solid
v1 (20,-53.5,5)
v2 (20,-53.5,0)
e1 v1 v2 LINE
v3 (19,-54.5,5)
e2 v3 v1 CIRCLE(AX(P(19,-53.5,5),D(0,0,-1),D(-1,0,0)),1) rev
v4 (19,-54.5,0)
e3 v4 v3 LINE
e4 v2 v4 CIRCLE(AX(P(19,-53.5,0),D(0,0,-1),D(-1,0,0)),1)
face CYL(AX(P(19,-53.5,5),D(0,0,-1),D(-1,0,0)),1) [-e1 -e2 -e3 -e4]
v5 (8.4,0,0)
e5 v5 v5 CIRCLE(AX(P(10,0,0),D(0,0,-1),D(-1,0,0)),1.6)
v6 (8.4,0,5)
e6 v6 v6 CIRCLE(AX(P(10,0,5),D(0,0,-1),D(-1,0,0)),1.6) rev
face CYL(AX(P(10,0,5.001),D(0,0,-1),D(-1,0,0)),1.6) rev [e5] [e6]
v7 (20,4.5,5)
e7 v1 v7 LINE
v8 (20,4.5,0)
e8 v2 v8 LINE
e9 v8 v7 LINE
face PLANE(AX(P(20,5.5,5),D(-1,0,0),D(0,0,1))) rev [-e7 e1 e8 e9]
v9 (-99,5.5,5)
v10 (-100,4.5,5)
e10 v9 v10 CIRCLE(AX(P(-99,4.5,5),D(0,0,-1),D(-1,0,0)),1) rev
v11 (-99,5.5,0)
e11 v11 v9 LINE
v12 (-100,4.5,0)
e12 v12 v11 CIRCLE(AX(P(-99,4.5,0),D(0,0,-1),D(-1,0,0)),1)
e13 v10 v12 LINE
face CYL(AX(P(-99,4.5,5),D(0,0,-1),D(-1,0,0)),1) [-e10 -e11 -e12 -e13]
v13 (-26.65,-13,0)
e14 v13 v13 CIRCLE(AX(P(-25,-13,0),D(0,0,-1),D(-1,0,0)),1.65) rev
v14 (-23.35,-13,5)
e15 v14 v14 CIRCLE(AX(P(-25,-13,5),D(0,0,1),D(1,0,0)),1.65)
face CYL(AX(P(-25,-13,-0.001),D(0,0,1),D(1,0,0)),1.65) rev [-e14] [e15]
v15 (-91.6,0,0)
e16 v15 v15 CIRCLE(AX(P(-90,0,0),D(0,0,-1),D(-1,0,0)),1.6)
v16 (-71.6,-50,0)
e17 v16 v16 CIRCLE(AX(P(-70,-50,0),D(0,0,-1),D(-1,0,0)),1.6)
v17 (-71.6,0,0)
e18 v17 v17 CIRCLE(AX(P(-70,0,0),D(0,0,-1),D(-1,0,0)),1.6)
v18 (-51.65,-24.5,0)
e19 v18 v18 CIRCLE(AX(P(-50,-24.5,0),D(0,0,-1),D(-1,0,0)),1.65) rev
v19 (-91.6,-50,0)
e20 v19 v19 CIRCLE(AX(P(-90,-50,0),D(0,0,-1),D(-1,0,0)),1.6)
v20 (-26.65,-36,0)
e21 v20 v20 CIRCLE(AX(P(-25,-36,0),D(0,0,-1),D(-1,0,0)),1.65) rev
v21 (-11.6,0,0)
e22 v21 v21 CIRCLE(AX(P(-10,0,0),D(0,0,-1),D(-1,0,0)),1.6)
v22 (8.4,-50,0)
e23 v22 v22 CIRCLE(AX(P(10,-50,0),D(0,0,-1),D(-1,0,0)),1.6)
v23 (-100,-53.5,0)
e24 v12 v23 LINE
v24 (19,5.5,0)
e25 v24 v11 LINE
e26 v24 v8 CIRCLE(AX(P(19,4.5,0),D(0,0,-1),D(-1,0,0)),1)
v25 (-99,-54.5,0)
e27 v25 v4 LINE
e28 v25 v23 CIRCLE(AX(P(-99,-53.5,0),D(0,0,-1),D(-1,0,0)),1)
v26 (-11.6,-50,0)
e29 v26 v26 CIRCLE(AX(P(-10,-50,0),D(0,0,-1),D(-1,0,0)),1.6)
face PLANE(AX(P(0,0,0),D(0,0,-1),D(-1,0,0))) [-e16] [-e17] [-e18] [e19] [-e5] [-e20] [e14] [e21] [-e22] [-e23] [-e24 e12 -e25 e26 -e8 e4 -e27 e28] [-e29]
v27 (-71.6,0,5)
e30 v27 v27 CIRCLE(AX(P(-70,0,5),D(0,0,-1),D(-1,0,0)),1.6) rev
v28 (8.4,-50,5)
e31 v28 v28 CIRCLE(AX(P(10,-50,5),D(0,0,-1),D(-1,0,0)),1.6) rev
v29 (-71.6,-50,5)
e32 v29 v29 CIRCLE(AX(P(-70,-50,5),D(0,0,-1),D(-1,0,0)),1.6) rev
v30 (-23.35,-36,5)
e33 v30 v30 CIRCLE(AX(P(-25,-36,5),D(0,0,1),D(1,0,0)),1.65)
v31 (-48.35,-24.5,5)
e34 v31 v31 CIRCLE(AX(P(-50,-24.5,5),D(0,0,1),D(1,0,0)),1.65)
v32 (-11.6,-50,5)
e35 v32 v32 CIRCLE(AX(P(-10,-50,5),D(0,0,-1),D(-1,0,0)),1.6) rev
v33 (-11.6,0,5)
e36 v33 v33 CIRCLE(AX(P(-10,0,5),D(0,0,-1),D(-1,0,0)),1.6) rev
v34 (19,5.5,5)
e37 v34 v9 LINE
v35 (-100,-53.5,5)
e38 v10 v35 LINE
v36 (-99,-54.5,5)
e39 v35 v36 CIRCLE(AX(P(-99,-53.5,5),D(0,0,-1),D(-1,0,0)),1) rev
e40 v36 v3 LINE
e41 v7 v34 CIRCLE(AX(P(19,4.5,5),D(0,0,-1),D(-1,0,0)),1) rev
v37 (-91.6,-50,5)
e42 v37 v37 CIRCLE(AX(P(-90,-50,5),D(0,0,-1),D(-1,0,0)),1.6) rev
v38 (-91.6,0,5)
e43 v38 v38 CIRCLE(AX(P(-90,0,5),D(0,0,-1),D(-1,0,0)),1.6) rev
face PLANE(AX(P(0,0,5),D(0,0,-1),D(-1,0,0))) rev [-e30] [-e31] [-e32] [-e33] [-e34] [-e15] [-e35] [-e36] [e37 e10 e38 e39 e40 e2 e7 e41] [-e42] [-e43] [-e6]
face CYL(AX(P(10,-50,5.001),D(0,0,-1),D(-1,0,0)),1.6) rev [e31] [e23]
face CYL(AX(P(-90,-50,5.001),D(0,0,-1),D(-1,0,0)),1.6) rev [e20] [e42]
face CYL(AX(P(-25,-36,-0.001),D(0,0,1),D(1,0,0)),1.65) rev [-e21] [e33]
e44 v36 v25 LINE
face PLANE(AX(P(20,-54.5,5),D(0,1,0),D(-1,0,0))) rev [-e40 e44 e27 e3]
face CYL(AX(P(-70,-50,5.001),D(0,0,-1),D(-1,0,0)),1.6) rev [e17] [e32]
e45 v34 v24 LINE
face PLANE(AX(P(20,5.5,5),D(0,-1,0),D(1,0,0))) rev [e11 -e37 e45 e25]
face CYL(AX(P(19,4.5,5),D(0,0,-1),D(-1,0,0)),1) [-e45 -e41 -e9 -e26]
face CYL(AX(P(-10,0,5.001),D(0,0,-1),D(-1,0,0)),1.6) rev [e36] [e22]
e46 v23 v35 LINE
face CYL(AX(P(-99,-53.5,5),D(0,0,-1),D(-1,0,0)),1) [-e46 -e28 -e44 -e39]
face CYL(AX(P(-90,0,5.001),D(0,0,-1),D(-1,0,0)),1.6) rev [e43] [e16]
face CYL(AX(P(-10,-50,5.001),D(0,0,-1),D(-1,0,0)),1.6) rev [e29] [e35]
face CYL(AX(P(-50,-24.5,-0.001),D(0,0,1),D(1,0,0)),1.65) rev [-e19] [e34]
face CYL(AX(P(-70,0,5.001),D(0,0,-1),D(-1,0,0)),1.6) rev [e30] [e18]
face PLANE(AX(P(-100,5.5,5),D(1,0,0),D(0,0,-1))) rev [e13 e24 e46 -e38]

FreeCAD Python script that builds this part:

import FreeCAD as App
import Part
import Sketcher

V = App.Vector


def edges_at(feature, points):
    """Names of the edges that pass closest to the given points."""
    edges = feature.Shape.Edges
    near = lambda p: min(range(len(edges)), key=lambda i: edges[i].distToShape(Part.Vertex(*p))[0])
    return sorted({f"Edge{near(p) + 1}" for p in points})


def add_polygon(sketch, points):
    """Adds a closed chain of lines whose ends are joined by coincident constraints."""
    first, n = sketch.GeometryCount, len(points)
    for a, b in zip(points, points[1:] + points[:1]):
        sketch.addGeometry(Part.LineSegment(App.Vector(*a, 0), App.Vector(*b, 0)), False)
    for i in range(n):
        sketch.addConstraint(Sketcher.Constraint("Coincident", first + i, 2, first + (i + 1) % n, 1))

doc = App.newDocument("Part")
body = doc.addObject("PartDesign::Body", "Body")

# Sketch on XY plane
sketch1 = body.newObject("Sketcher::SketchObject", "Sketch")
sketch1.AttachmentSupport = (doc.getObject("XY_Plane"), [""])
sketch1.MapMode = "FlatFace"
add_polygon(sketch1, [(-100, 5.5), (-100, -54.5), (20, -54.5), (20, 5.5)])  # lines 0-3
sketch1.addConstraint([
    Sketcher.Constraint("Vertical", 0),
    Sketcher.Constraint("Horizontal", 1),
    Sketcher.Constraint("Vertical", 2),
    Sketcher.Constraint("Horizontal", 3),
    Sketcher.Constraint("DistanceX", 1, 1, 1, 2, 120.0),
    Sketcher.Constraint("DistanceY", 0, 2, 0, 1, 60.0),
    Sketcher.Constraint("DistanceX", 0, 2, -1, 1, 100.0),
    Sketcher.Constraint("DistanceY", 0, 2, -1, 1, 54.5),
])
pad1 = body.newObject("PartDesign::Pad", "Pad")
pad1.Profile = sketch1
pad1.Length = 5

# Sketch on XY plane
sketch2 = body.newObject("Sketcher::SketchObject", "Sketch001")
sketch2.AttachmentSupport = (doc.getObject("XY_Plane"), [""])
sketch2.MapMode = "FlatFace"
sketch2.AttachmentOffset = App.Placement(V(0, 0, 5), App.Rotation())
sketch2.addGeometry(Part.Circle(V(-25, -13, 0), V(0, 0, 1), 1.65), False)
sketch2.addConstraint([
    Sketcher.Constraint("Diameter", 0, 3.3),
    Sketcher.Constraint("DistanceX", 0, 3, -1, 1, 25.0),
    Sketcher.Constraint("DistanceY", 0, 3, -1, 1, 13.0),
])
pocket1 = body.newObject("PartDesign::Pocket", "Pocket")
pocket1.Profile = sketch2
pocket1.Type = "UpToFirst"

# Sketch on XY plane
sketch3 = body.newObject("Sketcher::SketchObject", "Sketch002")
sketch3.AttachmentSupport = (doc.getObject("XY_Plane"), [""])
sketch3.MapMode = "FlatFace"
sketch3.AttachmentOffset = App.Placement(V(0, 0, 5), App.Rotation())
sketch3.addGeometry(Part.Circle(V(-50, -24.5, 0), V(0, 0, 1), 1.65), False)
sketch3.addConstraint([
    Sketcher.Constraint("Diameter", 0, 3.3),
    Sketcher.Constraint("DistanceX", 0, 3, -1, 1, 50.0),
    Sketcher.Constraint("DistanceY", 0, 3, -1, 1, 24.5),
])
pocket2 = body.newObject("PartDesign::Pocket", "Pocket001")
pocket2.Profile = sketch3
pocket2.Type = "UpToFirst"

# Sketch on XY plane
sketch4 = body.newObject("Sketcher::SketchObject", "Sketch003")
sketch4.AttachmentSupport = (doc.getObject("XY_Plane"), [""])
sketch4.MapMode = "FlatFace"
sketch4.AttachmentOffset = App.Placement(V(0, 0, 5), App.Rotation())
sketch4.addGeometry(Part.Circle(V(-25, -36, 0), V(0, 0, 1), 1.65), False)
sketch4.addConstraint([
    Sketcher.Constraint("Diameter", 0, 3.3),
    Sketcher.Constraint("DistanceX", 0, 3, -1, 1, 25.0),
    Sketcher.Constraint("DistanceY", 0, 3, -1, 1, 36.0),
])
pocket3 = body.newObject("PartDesign::Pocket", "Pocket002")
pocket3.Profile = sketch4
pocket3.Type = "UpToFirst"

# Sketch on XY plane
sketch5 = body.newObject("Sketcher::SketchObject", "Sketch004")
sketch5.AttachmentSupport = (doc.getObject("XY_Plane"), [""])
sketch5.MapMode = "FlatFace"
sketch5.addGeometry(Part.Circle(V(-90, 0, 0), V(0, 0, 1), 1.6), False)
sketch5.addConstraint([
    Sketcher.Constraint("PointOnObject", 0, 3, -1),
    Sketcher.Constraint("Diameter", 0, 3.2),
    Sketcher.Constraint("DistanceX", 0, 3, -1, 1, 90.0),
])
pocket4 = body.newObject("PartDesign::Pocket", "Pocket003")
pocket4.Profile = sketch5
pocket4.Type = "UpToFirst"
pocket4.Reversed = True

# Sketch on XY plane
sketch6 = body.newObject("Sketcher::SketchObject", "Sketch005")
sketch6.AttachmentSupport = (doc.getObject("XY_Plane"), [""])
sketch6.MapMode = "FlatFace"
sketch6.addGeometry(Part.Circle(V(-70, 0, 0), V(0, 0, 1), 1.6), False)
sketch6.addConstraint([
    Sketcher.Constraint("PointOnObject", 0, 3, -1),
    Sketcher.Constraint("Diameter", 0, 3.2),
    Sketcher.Constraint("DistanceX", 0, 3, -1, 1, 70.0),
])
pocket5 = body.newObject("PartDesign::Pocket", "Pocket004")
pocket5.Profile = sketch6
pocket5.Type = "UpToFirst"
pocket5.Reversed = True

# Sketch on XY plane
sketch7 = body.newObject("Sketcher::SketchObject", "Sketch006")
sketch7.AttachmentSupport = (doc.getObject("XY_Plane"), [""])
sketch7.MapMode = "FlatFace"
sketch7.addGeometry(Part.Circle(V(-70, -50, 0), V(0, 0, 1), 1.6), False)
sketch7.addConstraint([
    Sketcher.Constraint("Diameter", 0, 3.2),
    Sketcher.Constraint("DistanceX", 0, 3, -1, 1, 70.0),
    Sketcher.Constraint("DistanceY", 0, 3, -1, 1, 50.0),
])
pocket6 = body.newObject("PartDesign::Pocket", "Pocket005")
pocket6.Profile = sketch7
pocket6.Type = "UpToFirst"
pocket6.Reversed = True

# Sketch on XY plane
sketch8 = body.newObject("Sketcher::SketchObject", "Sketch007")
sketch8.AttachmentSupport = (doc.getObject("XY_Plane"), [""])
sketch8.MapMode = "FlatFace"
sketch8.addGeometry(Part.Circle(V(-90, -50, 0), V(0, 0, 1), 1.6), False)
sketch8.addConstraint([
    Sketcher.Constraint("Diameter", 0, 3.2),
    Sketcher.Constraint("DistanceX", 0, 3, -1, 1, 90.0),
    Sketcher.Constraint("DistanceY", 0, 3, -1, 1, 50.0),
])
pocket7 = body.newObject("PartDesign::Pocket", "Pocket006")
pocket7.Profile = sketch8
pocket7.Type = "UpToFirst"
pocket7.Reversed = True

# Sketch on XY plane
sketch9 = body.newObject("Sketcher::SketchObject", "Sketch008")
sketch9.AttachmentSupport = (doc.getObject("XY_Plane"), [""])
sketch9.MapMode = "FlatFace"
sketch9.addGeometry(Part.Circle(V(-10, -50, 0), V(0, 0, 1), 1.6), False)
sketch9.addConstraint([
    Sketcher.Constraint("Diameter", 0, 3.2),
    Sketcher.Constraint("DistanceX", 0, 3, -1, 1, 10.0),
    Sketcher.Constraint("DistanceY", 0, 3, -1, 1, 50.0),
])
pocket8 = body.newObject("PartDesign::Pocket", "Pocket007")
pocket8.Profile = sketch9
pocket8.Type = "UpToFirst"
pocket8.Reversed = True

# Sketch on XY plane
sketch10 = body.newObject("Sketcher::SketchObject", "Sketch009")
sketch10.AttachmentSupport = (doc.getObject("XY_Plane"), [""])
sketch10.MapMode = "FlatFace"
sketch10.addGeometry(Part.Circle(V(10, -50, 0), V(0, 0, 1), 1.6), False)
sketch10.addConstraint([
    Sketcher.Constraint("Diameter", 0, 3.2),
    Sketcher.Constraint("DistanceX", -1, 1, 0, 3, 10.0),
    Sketcher.Constraint("DistanceY", 0, 3, -1, 1, 50.0),
])
pocket9 = body.newObject("PartDesign::Pocket", "Pocket008")
pocket9.Profile = sketch10
pocket9.Type = "UpToFirst"
pocket9.Reversed = True

# Sketch on XY plane
sketch11 = body.newObject("Sketcher::SketchObject", "Sketch010")
sketch11.AttachmentSupport = (doc.getObject("XY_Plane"), [""])
sketch11.MapMode = "FlatFace"
sketch11.addGeometry(Part.Circle(V(10, 0, 0), V(0, 0, 1), 1.6), False)
sketch11.addConstraint([
    Sketcher.Constraint("PointOnObject", 0, 3, -1),
    Sketcher.Constraint("Diameter", 0, 3.2),
    Sketcher.Constraint("DistanceX", -1, 1, 0, 3, 10.0),
])
pocket10 = body.newObject("PartDesign::Pocket", "Pocket009")
pocket10.Profile = sketch11
pocket10.Type = "UpToFirst"
pocket10.Reversed = True

# Sketch on XY plane
sketch12 = body.newObject("Sketcher::SketchObject", "Sketch011")
sketch12.AttachmentSupport = (doc.getObject("XY_Plane"), [""])
sketch12.MapMode = "FlatFace"
sketch12.addGeometry(Part.Circle(V(-10, 0, 0), V(0, 0, 1), 1.6), False)
sketch12.addConstraint([
    Sketcher.Constraint("PointOnObject", 0, 3, -1),
    Sketcher.Constraint("Diameter", 0, 3.2),
    Sketcher.Constraint("DistanceX", 0, 3, -1, 1, 10.0),
])
pocket11 = body.newObject("PartDesign::Pocket", "Pocket010")
pocket11.Profile = sketch12
pocket11.Type = "UpToFirst"
pocket11.Reversed = True
doc.recompute()

fillet = body.newObject("PartDesign::Fillet", "Fillet")
fillet.Base = (pocket11, edges_at(pocket11, [
    (20, -54.5, 2.5),
    (-100, -54.5, 2.5),
    (-100, 5.5, 2.5),
    (20, 5.5, 2.5),
]))
fillet.Radius = 1

doc.recompute()
